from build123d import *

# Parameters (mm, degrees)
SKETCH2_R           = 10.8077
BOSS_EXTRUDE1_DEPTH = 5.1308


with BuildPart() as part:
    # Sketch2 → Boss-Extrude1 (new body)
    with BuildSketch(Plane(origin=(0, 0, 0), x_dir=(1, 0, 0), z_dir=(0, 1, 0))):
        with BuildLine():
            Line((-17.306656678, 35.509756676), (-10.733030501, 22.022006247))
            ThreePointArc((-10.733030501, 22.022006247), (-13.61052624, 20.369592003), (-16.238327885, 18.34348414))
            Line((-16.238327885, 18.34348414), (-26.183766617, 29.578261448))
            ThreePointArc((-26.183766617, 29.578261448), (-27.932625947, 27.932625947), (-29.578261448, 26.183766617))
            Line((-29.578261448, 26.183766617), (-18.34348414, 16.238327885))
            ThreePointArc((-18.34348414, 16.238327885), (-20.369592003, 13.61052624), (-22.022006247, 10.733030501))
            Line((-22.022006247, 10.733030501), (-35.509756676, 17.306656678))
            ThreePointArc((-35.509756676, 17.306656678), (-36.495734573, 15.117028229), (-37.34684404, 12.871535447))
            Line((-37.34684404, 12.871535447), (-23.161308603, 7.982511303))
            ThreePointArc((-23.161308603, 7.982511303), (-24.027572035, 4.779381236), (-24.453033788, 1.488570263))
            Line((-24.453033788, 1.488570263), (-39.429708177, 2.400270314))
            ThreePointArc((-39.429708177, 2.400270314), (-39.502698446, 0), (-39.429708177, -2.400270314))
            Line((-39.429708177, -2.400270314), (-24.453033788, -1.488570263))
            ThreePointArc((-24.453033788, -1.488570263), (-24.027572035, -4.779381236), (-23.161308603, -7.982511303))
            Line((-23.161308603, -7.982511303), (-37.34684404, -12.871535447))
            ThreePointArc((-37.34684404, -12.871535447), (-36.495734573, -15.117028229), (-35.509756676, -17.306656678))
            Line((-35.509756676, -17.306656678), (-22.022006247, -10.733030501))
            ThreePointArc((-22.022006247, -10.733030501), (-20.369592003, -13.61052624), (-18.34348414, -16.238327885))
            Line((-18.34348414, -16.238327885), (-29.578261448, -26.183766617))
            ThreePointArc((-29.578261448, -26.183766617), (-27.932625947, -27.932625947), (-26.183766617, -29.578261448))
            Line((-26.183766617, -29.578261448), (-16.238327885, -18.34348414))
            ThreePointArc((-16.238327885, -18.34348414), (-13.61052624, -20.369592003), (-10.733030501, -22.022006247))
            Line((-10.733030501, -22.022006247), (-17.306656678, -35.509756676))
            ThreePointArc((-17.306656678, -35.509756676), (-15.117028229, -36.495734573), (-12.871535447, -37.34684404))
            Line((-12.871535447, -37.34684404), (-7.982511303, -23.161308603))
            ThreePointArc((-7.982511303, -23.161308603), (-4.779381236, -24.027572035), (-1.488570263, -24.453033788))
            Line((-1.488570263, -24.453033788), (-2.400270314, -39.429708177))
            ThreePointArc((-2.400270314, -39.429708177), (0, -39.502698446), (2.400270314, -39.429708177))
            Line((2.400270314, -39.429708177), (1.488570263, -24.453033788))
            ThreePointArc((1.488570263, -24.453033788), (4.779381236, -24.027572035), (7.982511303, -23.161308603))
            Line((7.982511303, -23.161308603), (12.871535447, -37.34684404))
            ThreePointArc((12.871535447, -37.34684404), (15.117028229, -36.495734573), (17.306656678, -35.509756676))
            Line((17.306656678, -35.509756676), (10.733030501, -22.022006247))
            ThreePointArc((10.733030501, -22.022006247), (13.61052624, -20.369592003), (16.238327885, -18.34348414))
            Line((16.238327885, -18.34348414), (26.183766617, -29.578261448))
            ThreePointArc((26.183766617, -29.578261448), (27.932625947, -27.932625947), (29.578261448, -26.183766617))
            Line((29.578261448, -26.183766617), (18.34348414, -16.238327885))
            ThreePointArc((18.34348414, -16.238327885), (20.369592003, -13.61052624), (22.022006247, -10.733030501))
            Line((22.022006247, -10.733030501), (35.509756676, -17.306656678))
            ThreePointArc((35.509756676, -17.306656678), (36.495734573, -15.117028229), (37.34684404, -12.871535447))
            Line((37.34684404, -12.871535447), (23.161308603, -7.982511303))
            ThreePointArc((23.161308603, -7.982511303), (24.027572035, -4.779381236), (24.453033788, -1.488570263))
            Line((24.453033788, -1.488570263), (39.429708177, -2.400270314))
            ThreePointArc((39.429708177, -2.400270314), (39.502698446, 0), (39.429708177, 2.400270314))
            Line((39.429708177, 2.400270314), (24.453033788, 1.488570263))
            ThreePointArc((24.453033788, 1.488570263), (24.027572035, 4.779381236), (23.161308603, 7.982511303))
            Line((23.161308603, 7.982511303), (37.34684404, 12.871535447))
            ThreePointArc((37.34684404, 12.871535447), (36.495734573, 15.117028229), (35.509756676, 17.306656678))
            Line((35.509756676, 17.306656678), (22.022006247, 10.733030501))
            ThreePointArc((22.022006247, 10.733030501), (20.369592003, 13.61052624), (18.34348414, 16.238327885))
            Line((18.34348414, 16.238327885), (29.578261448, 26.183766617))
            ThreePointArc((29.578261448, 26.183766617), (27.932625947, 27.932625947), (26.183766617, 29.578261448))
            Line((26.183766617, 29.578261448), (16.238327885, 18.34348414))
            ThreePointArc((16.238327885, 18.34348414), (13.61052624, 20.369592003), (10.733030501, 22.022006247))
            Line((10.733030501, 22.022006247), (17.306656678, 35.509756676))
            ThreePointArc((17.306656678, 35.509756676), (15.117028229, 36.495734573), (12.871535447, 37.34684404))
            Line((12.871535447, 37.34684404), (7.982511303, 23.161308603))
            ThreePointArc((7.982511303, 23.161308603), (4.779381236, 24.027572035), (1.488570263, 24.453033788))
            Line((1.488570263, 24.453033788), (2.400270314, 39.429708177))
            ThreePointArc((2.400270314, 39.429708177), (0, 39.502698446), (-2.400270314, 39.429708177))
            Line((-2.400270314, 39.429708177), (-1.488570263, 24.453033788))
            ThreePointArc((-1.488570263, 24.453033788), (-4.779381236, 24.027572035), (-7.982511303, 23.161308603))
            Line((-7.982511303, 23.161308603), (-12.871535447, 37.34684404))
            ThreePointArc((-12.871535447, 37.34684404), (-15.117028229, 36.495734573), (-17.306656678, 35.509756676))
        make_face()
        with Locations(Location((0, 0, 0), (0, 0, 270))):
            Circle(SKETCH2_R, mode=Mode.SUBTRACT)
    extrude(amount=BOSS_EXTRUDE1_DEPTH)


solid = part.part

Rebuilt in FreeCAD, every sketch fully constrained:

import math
import FreeCAD as App
import Part
import Sketcher

V = App.Vector
Q = App.Units.Quantity

doc = App.newDocument("Part")
body = doc.addObject("PartDesign::Body", "Body")

sketch1 = body.newObject("Sketcher::SketchObject", "Sketch")
sketch1.AttachmentSupport = (doc.getObject("XZ_Plane"), [""])
sketch1.MapMode = "FlatFace"
sketch1.addGeometry([
    Part.LineSegment(V(-17.306657, -35.509757, 0), V(-10.733031, -22.022006, 0)),
    Part.ArcOfCircle(Part.Circle(V(0, 0, 0), V(0, 0, 1), 24.4983), math.radians(-131.516437), math.radians(-115.983563)),
    Part.LineSegment(V(-16.238328, -18.343484, 0), V(-26.183767, -29.578261, 0)),
    Part.ArcOfCircle(Part.Circle(V(0, 0, 0), V(0, 0, 1), 39.502698), math.radians(-138.483563), math.radians(-131.516437)),
    Part.LineSegment(V(-29.578261, -26.183767, 0), V(-18.343484, -16.238328, 0)),
    Part.ArcOfCircle(Part.Circle(V(0, 0, 0), V(0, 0, 1), 24.4983), math.radians(-154.016437), math.radians(-138.483563)),
    Part.LineSegment(V(-22.022006, -10.733031, 0), V(-35.509757, -17.306657, 0)),
    Part.ArcOfCircle(Part.Circle(V(0, 0, 0), V(0, 0, 1), 39.502699), math.radians(-160.983563), math.radians(-154.016437)),
    Part.LineSegment(V(-37.346844, -12.871535, 0), V(-23.161309, -7.982511, 0)),
    Part.ArcOfCircle(Part.Circle(V(0, 0, 0), V(0, 0, 1), 24.4983), math.radians(-176.516437), math.radians(-160.983563)),
    Part.LineSegment(V(-24.453034, -1.48857, 0), V(-39.429708, -2.40027, 0)),
    Part.ArcOfCircle(Part.Circle(V(0, 0, 0), V(0, 0, 1), 39.502698), math.radians(176.516437), math.radians(183.483563)),
    Part.LineSegment(V(-39.429708, 2.40027, 0), V(-24.453034, 1.48857, 0)),
    Part.ArcOfCircle(Part.Circle(V(0, 0, 0), V(0, 0, 1), 24.4983), math.radians(160.983563), math.radians(176.516437)),
    Part.LineSegment(V(-23.161309, 7.982511, 0), V(-37.346844, 12.871535, 0)),
    Part.ArcOfCircle(Part.Circle(V(0, 0, 0), V(0, 0, 1), 39.502699), math.radians(154.016437), math.radians(160.983563)),
    Part.LineSegment(V(-35.509757, 17.306657, 0), V(-22.022006, 10.733031, 0)),
    Part.ArcOfCircle(Part.Circle(V(0, 0, 0), V(0, 0, 1), 24.4983), math.radians(138.483563), math.radians(154.016437)),
    Part.LineSegment(V(-18.343484, 16.238328, 0), V(-29.578261, 26.183767, 0)),
    Part.ArcOfCircle(Part.Circle(V(0, 0, 0), V(0, 0, 1), 39.502698), math.radians(131.516437), math.radians(138.483563)),
    Part.LineSegment(V(-26.183767, 29.578261, 0), V(-16.238328, 18.343484, 0)),
    Part.ArcOfCircle(Part.Circle(V(0, 0, 0), V(0, 0, 1), 24.4983), math.radians(115.983563), math.radians(131.516437)),
    Part.LineSegment(V(-10.733031, 22.022006, 0), V(-17.306657, 35.509757, 0)),
    Part.ArcOfCircle(Part.Circle(V(0, 0, 0), V(0, 0, 1), 39.502699), math.radians(109.016437), math.radians(115.983563)),
    Part.LineSegment(V(-12.871535, 37.346844, 0), V(-7.982511, 23.161309, 0)),
    Part.ArcOfCircle(Part.Circle(V(0, 0, 0), V(0, 0, 1), 24.4983), math.radians(93.483563), math.radians(109.016437)),
    Part.LineSegment(V(-1.48857, 24.453034, 0), V(-2.40027, 39.429708, 0)),
    Part.ArcOfCircle(Part.Circle(V(0, 0, 0), V(0, 0, 1), 39.502698), math.radians(86.516437), math.radians(93.483563)),
    Part.LineSegment(V(2.40027, 39.429708, 0), V(1.48857, 24.453034, 0)),
    Part.ArcOfCircle(Part.Circle(V(0, 0, 0), V(0, 0, 1), 24.4983), math.radians(70.983563), math.radians(86.516437)),
    Part.LineSegment(V(7.982511, 23.161309, 0), V(12.871535, 37.346844, 0)),
    Part.ArcOfCircle(Part.Circle(V(0, 0, 0), V(0, 0, 1), 39.502699), math.radians(64.016437), math.radians(70.983563)),
    Part.LineSegment(V(17.306657, 35.509757, 0), V(10.733031, 22.022006, 0)),
    Part.ArcOfCircle(Part.Circle(V(0, 0, 0), V(0, 0, 1), 24.4983), math.radians(48.483563), math.radians(64.016437)),
    Part.LineSegment(V(16.238328, 18.343484, 0), V(26.183767, 29.578261, 0)),
    Part.ArcOfCircle(Part.Circle(V(0, 0, 0), V(0, 0, 1), 39.502698), math.radians(41.516437), math.radians(48.483563)),
    Part.LineSegment(V(29.578261, 26.183767, 0), V(18.343484, 16.238328, 0)),
    Part.ArcOfCircle(Part.Circle(V(0, 0, 0), V(0, 0, 1), 24.4983), math.radians(25.983563), math.radians(41.516437)),
    Part.LineSegment(V(22.022006, 10.733031, 0), V(35.509757, 17.306657, 0)),
    Part.ArcOfCircle(Part.Circle(V(0, 0, 0), V(0, 0, 1), 39.502699), math.radians(19.016437), math.radians(25.983563)),
    Part.LineSegment(V(37.346844, 12.871535, 0), V(23.161309, 7.982511, 0)),
    Part.ArcOfCircle(Part.Circle(V(0, 0, 0), V(0, 0, 1), 24.4983), math.radians(3.483563), math.radians(19.016437)),
    Part.LineSegment(V(24.453034, 1.48857, 0), V(39.429708, 2.40027, 0)),
    Part.ArcOfCircle(Part.Circle(V(0, 0, 0), V(0, 0, 1), 39.502698), math.radians(-3.483563), math.radians(3.483563)),
    Part.LineSegment(V(39.429708, -2.40027, 0), V(24.453034, -1.48857, 0)),
    Part.ArcOfCircle(Part.Circle(V(0, 0, 0), V(0, 0, 1), 24.4983), math.radians(-19.016437), math.radians(-3.483563)),
    Part.LineSegment(V(23.161309, -7.982511, 0), V(37.346844, -12.871535, 0)),
    Part.ArcOfCircle(Part.Circle(V(0, 0, 0), V(0, 0, 1), 39.502699), math.radians(-25.983563), math.radians(-19.016437)),
    Part.LineSegment(V(35.509757, -17.306657, 0), V(22.022006, -10.733031, 0)),
    Part.ArcOfCircle(Part.Circle(V(0, 0, 0), V(0, 0, 1), 24.4983), math.radians(-41.516437), math.radians(-25.983563)),
    Part.LineSegment(V(18.343484, -16.238328, 0), V(29.578261, -26.183767, 0)),
    Part.ArcOfCircle(Part.Circle(V(0, 0, 0), V(0, 0, 1), 39.502698), math.radians(-48.483563), math.radians(-41.516437)),
    Part.LineSegment(V(26.183767, -29.578261, 0), V(16.238328, -18.343484, 0)),
    Part.ArcOfCircle(Part.Circle(V(0, 0, 0), V(0, 0, 1), 24.4983), math.radians(-64.016437), math.radians(-48.483563)),
    Part.LineSegment(V(10.733031, -22.022006, 0), V(17.306657, -35.509757, 0)),
    Part.ArcOfCircle(Part.Circle(V(0, 0, 0), V(0, 0, 1), 39.502699), math.radians(-70.983563), math.radians(-64.016437)),
    Part.LineSegment(V(12.871535, -37.346844, 0), V(7.982511, -23.161309, 0)),
    Part.ArcOfCircle(Part.Circle(V(0, 0, 0), V(0, 0, 1), 24.4983), math.radians(-86.516437), math.radians(-70.983563)),
    Part.LineSegment(V(1.48857, -24.453034, 0), V(2.40027, -39.429708, 0)),
    Part.ArcOfCircle(Part.Circle(V(0, 0, 0), V(0, 0, 1), 39.502698), math.radians(-93.483563), math.radians(-86.516437)),
    Part.LineSegment(V(-2.40027, -39.429708, 0), V(-1.48857, -24.453034, 0)),
    Part.ArcOfCircle(Part.Circle(V(0, 0, 0), V(0, 0, 1), 24.4983), math.radians(-109.016437), math.radians(-93.483563)),
    Part.LineSegment(V(-7.982511, -23.161309, 0), V(-12.871535, -37.346844, 0)),
    Part.ArcOfCircle(Part.Circle(V(0, 0, 0), V(0, 0, 1), 39.502699), math.radians(-115.983563), math.radians(-109.016437)),
    Part.Circle(V(0, 0, 0), V(0, 0, 1), 10.8077),
], False)
sketch1.addConstraint([
    Sketcher.Constraint("Coincident", 0, 2, 1, 2),
    Sketcher.Constraint("Coincident", 1, 1, 2, 1),
    Sketcher.Constraint("Coincident", 2, 2, 3, 2),
    Sketcher.Constraint("Coincident", 3, 1, 4, 1),
    Sketcher.Constraint("Coincident", 4, 2, 5, 2),
    Sketcher.Constraint("Coincident", 5, 1, 6, 1),
    Sketcher.Constraint("Coincident", 6, 2, 7, 2),
    Sketcher.Constraint("Coincident", 7, 1, 8, 1),
    Sketcher.Constraint("Coincident", 8, 2, 9, 2),
    Sketcher.Constraint("Coincident", 9, 1, 10, 1),
    Sketcher.Constraint("Coincident", 10, 2, 11, 2),
    Sketcher.Constraint("Coincident", 11, 1, 12, 1),
    Sketcher.Constraint("Coincident", 12, 2, 13, 2),
    Sketcher.Constraint("Coincident", 13, 1, 14, 1),
    Sketcher.Constraint("Coincident", 14, 2, 15, 2),
    Sketcher.Constraint("Coincident", 15, 1, 16, 1),
    Sketcher.Constraint("Coincident", 16, 2, 17, 2),
    Sketcher.Constraint("Coincident", 17, 1, 18, 1),
    Sketcher.Constraint("Coincident", 18, 2, 19, 2),
    Sketcher.Constraint("Coincident", 19, 1, 20, 1),
    Sketcher.Constraint("Coincident", 20, 2, 21, 2),
    Sketcher.Constraint("Coincident", 21, 1, 22, 1),
    Sketcher.Constraint("Coincident", 22, 2, 23, 2),
    Sketcher.Constraint("Coincident", 23, 1, 24, 1),
    Sketcher.Constraint("Coincident", 24, 2, 25, 2),
    Sketcher.Constraint("Coincident", 25, 1, 26, 1),
    Sketcher.Constraint("Coincident", 26, 2, 27, 2),
    Sketcher.Constraint("Coincident", 27, 1, 28, 1),
    Sketcher.Constraint("Coincident", 28, 2, 29, 2),
    Sketcher.Constraint("Coincident", 29, 1, 30, 1),
    Sketcher.Constraint("Coincident", 30, 2, 31, 2),
    Sketcher.Constraint("Coincident", 31, 1, 32, 1),
    Sketcher.Constraint("Coincident", 32, 2, 33, 2),
    Sketcher.Constraint("Coincident", 33, 1, 34, 1),
    Sketcher.Constraint("Coincident", 34, 2, 35, 2),
    Sketcher.Constraint("Coincident", 35, 1, 36, 1),
    Sketcher.Constraint("Coincident", 36, 2, 37, 2),
    Sketcher.Constraint("Coincident", 37, 1, 38, 1),
    Sketcher.Constraint("Coincident", 38, 2, 39, 2),
    Sketcher.Constraint("Coincident", 39, 1, 40, 1),
    Sketcher.Constraint("Coincident", 40, 2, 41, 2),
    Sketcher.Constraint("Coincident", 41, 1, 42, 1),
    Sketcher.Constraint("Coincident", 42, 2, 43, 2),
    Sketcher.Constraint("Coincident", 43, 1, 44, 1),
    Sketcher.Constraint("Coincident", 44, 2, 45, 2),
    Sketcher.Constraint("Coincident", 45, 1, 46, 1),
    Sketcher.Constraint("Coincident", 46, 2, 47, 2),
    Sketcher.Constraint("Coincident", 47, 1, 48, 1),
    Sketcher.Constraint("Coincident", 48, 2, 49, 2),
    Sketcher.Constraint("Coincident", 49, 1, 50, 1),
    Sketcher.Constraint("Coincident", 50, 2, 51, 2),
    Sketcher.Constraint("Coincident", 51, 1, 52, 1),
    Sketcher.Constraint("Coincident", 52, 2, 53, 2),
    Sketcher.Constraint("Coincident", 53, 1, 54, 1),
    Sketcher.Constraint("Coincident", 54, 2, 55, 2),
    Sketcher.Constraint("Coincident", 55, 1, 56, 1),
    Sketcher.Constraint("Coincident", 56, 2, 57, 2),
    Sketcher.Constraint("Coincident", 57, 1, 58, 1),
    Sketcher.Constraint("Coincident", 58, 2, 59, 2),
    Sketcher.Constraint("Coincident", 59, 1, 60, 1),
    Sketcher.Constraint("Coincident", 60, 2, 61, 2),
    Sketcher.Constraint("Coincident", 61, 1, 62, 1),
    Sketcher.Constraint("Coincident", 62, 2, 63, 2),
    Sketcher.Constraint("Coincident", 63, 1, 0, 1),
    Sketcher.Constraint("Coincident", 1, 3, -1, 1),
    Sketcher.Constraint("Coincident", 3, 3, -1, 1),
    Sketcher.Constraint("Coincident", 5, 3, -1, 1),
    Sketcher.Constraint("Coincident", 7, 3, -1, 1),
    Sketcher.Constraint("Coincident", 9, 3, -1, 1),
    Sketcher.Constraint("Coincident", 11, 3, -1, 1),
    Sketcher.Constraint("Coincident", 13, 3, -1, 1),
    Sketcher.Constraint("Coincident", 15, 3, -1, 1),
    Sketcher.Constraint("Coincident", 17, 3, -1, 1),
    Sketcher.Constraint("Coincident", 19, 3, -1, 1),
    Sketcher.Constraint("Coincident", 21, 3, -1, 1),
    Sketcher.Constraint("Coincident", 23, 3, -1, 1),
    Sketcher.Constraint("Coincident", 25, 3, -1, 1),
    Sketcher.Constraint("Coincident", 27, 3, -1, 1),
    Sketcher.Constraint("Coincident", 29, 3, -1, 1),
    Sketcher.Constraint("Coincident", 31, 3, -1, 1),
    Sketcher.Constraint("Coincident", 33, 3, -1, 1),
    Sketcher.Constraint("Coincident", 35, 3, -1, 1),
    Sketcher.Constraint("Coincident", 37, 3, -1, 1),
    Sketcher.Constraint("Coincident", 39, 3, -1, 1),
    Sketcher.Constraint("Coincident", 41, 3, -1, 1),
    Sketcher.Constraint("Coincident", 43, 3, -1, 1),
    Sketcher.Constraint("Coincident", 45, 3, -1, 1),
    Sketcher.Constraint("Coincident", 47, 3, -1, 1),
    Sketcher.Constraint("Coincident", 49, 3, -1, 1),
    Sketcher.Constraint("Coincident", 51, 3, -1, 1),
    Sketcher.Constraint("Coincident", 53, 3, -1, 1),
    Sketcher.Constraint("Coincident", 55, 3, -1, 1),
    Sketcher.Constraint("Coincident", 57, 3, -1, 1),
    Sketcher.Constraint("Coincident", 59, 3, -1, 1),
    Sketcher.Constraint("Coincident", 61, 3, -1, 1),
    Sketcher.Constraint("Coincident", 63, 3, -1, 1),
    Sketcher.Constraint("Coincident", 64, 3, -1, 1),
    Sketcher.Constraint("Equal", 1, 5),
    Sketcher.Constraint("Equal", 3, 7),
    Sketcher.Constraint("Equal", 5, 9),
    Sketcher.Constraint("Equal", 7, 11),
    Sketcher.Constraint("Equal", 9, 13),
    Sketcher.Constraint("Equal", 11, 15),
    Sketcher.Constraint("Equal", 13, 17),
    Sketcher.Constraint("Equal", 15, 19),
    Sketcher.Constraint("Equal", 17, 21),
    Sketcher.Constraint("Equal", 19, 23),
    Sketcher.Constraint("Equal", 21, 25),
    Sketcher.Constraint("Equal", 23, 27),
    Sketcher.Constraint("Equal", 25, 29),
    Sketcher.Constraint("Equal", 27, 31),
    Sketcher.Constraint("Equal", 29, 33),
    Sketcher.Constraint("Equal", 31, 35),
    Sketcher.Constraint("Equal", 33, 37),
    Sketcher.Constraint("Equal", 35, 39),
    Sketcher.Constraint("Equal", 37, 41),
    Sketcher.Constraint("Equal", 39, 43),
    Sketcher.Constraint("Equal", 41, 45),
    Sketcher.Constraint("Equal", 43, 47),
    Sketcher.Constraint("Equal", 45, 49),
    Sketcher.Constraint("Equal", 47, 51),
    Sketcher.Constraint("Equal", 49, 53),
    Sketcher.Constraint("Equal", 51, 55),
    Sketcher.Constraint("Equal", 53, 57),
    Sketcher.Constraint("Equal", 55, 59),
    Sketcher.Constraint("Equal", 57, 61),
    Sketcher.Constraint("Equal", 59, 63),
    Sketcher.Constraint("Perpendicular", 0, 16),
    Sketcher.Constraint("Perpendicular", 2, 18),
    Sketcher.Constraint("Perpendicular", 4, 20),
    Sketcher.Constraint("Perpendicular", 6, 22),
    Sketcher.Constraint("Perpendicular", 8, 24),
    Sketcher.Constraint("Perpendicular", 10, 26),
    Sketcher.Constraint("Perpendicular", 12, 28),
    Sketcher.Constraint("Perpendicular", 14, 30),
    Sketcher.Constraint("Perpendicular", 16, 32),
    Sketcher.Constraint("Perpendicular", 18, 34),
    Sketcher.Constraint("Perpendicular", 20, 36),
    Sketcher.Constraint("Perpendicular", 22, 38),
    Sketcher.Constraint("Perpendicular", 24, 40),
    Sketcher.Constraint("Perpendicular", 26, 42),
    Sketcher.Constraint("Perpendicular", 28, 44),
    Sketcher.Constraint("Perpendicular", 30, 46),
    Sketcher.Constraint("Perpendicular", 32, 48),
    Sketcher.Constraint("Perpendicular", 34, 50),
    Sketcher.Constraint("Perpendicular", 36, 52),
    Sketcher.Constraint("Perpendicular", 38, 54),
    Sketcher.Constraint("Perpendicular", 40, 56),
    Sketcher.Constraint("Perpendicular", 42, 58),
    Sketcher.Constraint("Perpendicular", 44, 60),
    Sketcher.Constraint("Perpendicular", 46, 62),
    Sketcher.Constraint("Horizontal", 26, 2, 27, 1),
    Sketcher.Constraint("Horizontal", 25, 1, 28, 2),
    Sketcher.Constraint("Horizontal", 24, 2, 29, 1),
    Sketcher.Constraint("Horizontal", 23, 1, 30, 2),
    Sketcher.Constraint("Horizontal", 22, 2, 31, 1),
    Sketcher.Constraint("Horizontal", 21, 1, 32, 2),
    Sketcher.Constraint("Horizontal", 20, 2, 33, 1),
    Sketcher.Constraint("Horizontal", 19, 1, 34, 2),
    Sketcher.Constraint("Horizontal", 18, 2, 35, 1),
    Sketcher.Constraint("Horizontal", 16, 2, 37, 1),
    Sketcher.Constraint("Horizontal", 14, 2, 39, 1),
    Sketcher.Constraint("Horizontal", 12, 2, 41, 1),
    Sketcher.Constraint("Horizontal", 10, 2, 43, 1),
    Sketcher.Constraint("Horizontal", 8, 2, 45, 1),
    Sketcher.Constraint("Horizontal", 6, 2, 47, 1),
    Sketcher.Constraint("Horizontal", 4, 2, 49, 1),
    Sketcher.Constraint("Horizontal", 2, 2, 51, 1),
    Sketcher.Constraint("Horizontal", 0, 2, 53, 1),
    Sketcher.Constraint("Horizontal", 58, 2, 59, 1),
    Sketcher.Constraint("Horizontal", 56, 2, 61, 1),
    Sketcher.Constraint("Vertical", 10, 2, 11, 1),
    Sketcher.Constraint("Vertical", 8, 2, 13, 1),
    Sketcher.Constraint("Vertical", 6, 2, 15, 1),
    Sketcher.Constraint("Vertical", 4, 2, 17, 1),
    Sketcher.Constraint("Vertical", 2, 2, 19, 1),
    Sketcher.Constraint("Vertical", 0, 2, 21, 1),
    Sketcher.Constraint("Vertical", 30, 2, 55, 1),
    Sketcher.Constraint("Vertical", 28, 2, 57, 1),
    Sketcher.Constraint("Diameter", 64, Q("0.851 in")),
    Sketcher.Constraint("Radius", 1, Q("0.9645 in")),
    Sketcher.Constraint("Radius", 3, 39.502698),
    Sketcher.Constraint("DistanceX", 0, 2, -1, 1, 10.733031),
    Sketcher.Constraint("DistanceY", 2, 2, -1, 1, 29.578261),
    Sketcher.Constraint("DistanceX", 3, 1, -1, 1, 29.578261),
    Sketcher.Constraint("DistanceY", 5, 1, -1, 1, 10.733031),
    Sketcher.Constraint("DistanceX", 8, 2, -1, 1, 23.161309),
    Sketcher.Constraint("DistanceY", 9, 1, -1, 1, 1.48857),
    Sketcher.Constraint("DistanceX", 10, 2, -1, 1, 39.429708),
    Sketcher.Constraint("DistanceX", 24, 2, -1, 1, 7.982511),
    Sketcher.Constraint("DistanceX", 25, 1, -1, 1, 1.48857),
    Sketcher.Constraint("DistanceX", 1, 1, -1, 1, 16.238328),
    Sketcher.Constraint("DistanceX", 6, 2, -1, 1, 35.509757),
    Sketcher.Constraint("DistanceX", 7, 1, -1, 1, 37.346844),
])
pad1 = body.newObject("PartDesign::Pad", "Pad")
pad1.Profile = sketch1
pad1.Length = Q("0.202 in")
pad1.Reversed = True

doc.recompute()
